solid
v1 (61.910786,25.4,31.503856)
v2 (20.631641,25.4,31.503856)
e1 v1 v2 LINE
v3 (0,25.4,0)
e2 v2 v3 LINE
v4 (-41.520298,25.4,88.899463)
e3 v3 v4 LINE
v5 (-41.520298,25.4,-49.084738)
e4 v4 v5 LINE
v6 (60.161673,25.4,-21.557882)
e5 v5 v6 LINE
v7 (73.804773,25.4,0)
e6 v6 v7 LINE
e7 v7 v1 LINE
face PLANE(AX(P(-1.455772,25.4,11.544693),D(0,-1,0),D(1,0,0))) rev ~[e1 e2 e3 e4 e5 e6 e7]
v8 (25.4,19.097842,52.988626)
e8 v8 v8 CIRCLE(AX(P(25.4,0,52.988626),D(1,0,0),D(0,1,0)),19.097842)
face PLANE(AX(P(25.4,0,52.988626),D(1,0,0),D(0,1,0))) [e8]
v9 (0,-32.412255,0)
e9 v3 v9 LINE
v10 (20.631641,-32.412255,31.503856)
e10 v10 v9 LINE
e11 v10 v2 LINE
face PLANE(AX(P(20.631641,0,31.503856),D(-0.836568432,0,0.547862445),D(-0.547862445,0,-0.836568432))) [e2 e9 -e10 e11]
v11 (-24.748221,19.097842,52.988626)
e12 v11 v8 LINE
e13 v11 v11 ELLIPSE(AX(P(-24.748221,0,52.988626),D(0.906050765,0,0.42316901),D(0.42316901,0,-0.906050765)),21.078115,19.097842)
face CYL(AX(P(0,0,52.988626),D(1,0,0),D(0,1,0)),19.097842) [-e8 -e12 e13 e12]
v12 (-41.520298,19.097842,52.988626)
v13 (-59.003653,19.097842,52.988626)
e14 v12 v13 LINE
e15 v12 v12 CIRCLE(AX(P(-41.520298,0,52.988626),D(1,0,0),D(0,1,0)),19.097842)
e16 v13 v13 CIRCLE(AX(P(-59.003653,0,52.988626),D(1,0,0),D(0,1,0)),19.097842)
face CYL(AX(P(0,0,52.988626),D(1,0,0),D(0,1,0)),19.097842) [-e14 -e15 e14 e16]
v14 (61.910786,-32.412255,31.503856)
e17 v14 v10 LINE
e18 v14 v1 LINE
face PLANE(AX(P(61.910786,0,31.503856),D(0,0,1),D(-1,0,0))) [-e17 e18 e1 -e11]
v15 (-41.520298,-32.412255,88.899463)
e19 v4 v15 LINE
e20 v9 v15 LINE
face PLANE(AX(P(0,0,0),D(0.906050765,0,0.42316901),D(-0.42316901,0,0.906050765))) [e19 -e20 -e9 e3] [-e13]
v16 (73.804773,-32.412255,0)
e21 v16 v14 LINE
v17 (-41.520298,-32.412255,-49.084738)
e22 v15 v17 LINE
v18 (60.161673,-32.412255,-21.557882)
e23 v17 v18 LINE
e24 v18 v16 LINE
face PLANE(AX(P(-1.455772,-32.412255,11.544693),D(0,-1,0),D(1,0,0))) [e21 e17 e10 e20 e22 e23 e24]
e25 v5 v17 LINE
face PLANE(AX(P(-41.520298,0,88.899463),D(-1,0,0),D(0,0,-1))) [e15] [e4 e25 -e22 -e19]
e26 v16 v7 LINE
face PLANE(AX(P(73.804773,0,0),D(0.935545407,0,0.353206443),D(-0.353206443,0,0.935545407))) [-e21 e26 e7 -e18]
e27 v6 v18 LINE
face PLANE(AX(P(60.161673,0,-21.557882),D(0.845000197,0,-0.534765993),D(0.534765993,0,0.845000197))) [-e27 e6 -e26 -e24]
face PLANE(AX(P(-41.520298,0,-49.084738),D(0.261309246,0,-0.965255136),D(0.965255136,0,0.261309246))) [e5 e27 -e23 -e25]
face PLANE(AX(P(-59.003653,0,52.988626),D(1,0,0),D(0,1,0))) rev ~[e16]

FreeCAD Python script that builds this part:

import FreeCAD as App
import Part
import Sketcher
Q = App.Units.Quantity

doc = App.newDocument("Part")
body = doc.addObject("PartDesign::Body", "Body")

sketch1 = doc.addObject("Sketcher::SketchObject", "Sketch")
body.addObject(sketch1)
sketch1.AttachmentSupport = (doc.XZ_Plane, [""])
sketch1.MapMode = "FlatFace"
sketch1.addGeometry([
    Part.LineSegment(App.Vector(20.631641, 31.503856, 0), App.Vector(0, 0, 0)),
    Part.LineSegment(App.Vector(0, 0, 0), App.Vector(-41.520298, 88.899463, 0)),
    Part.LineSegment(App.Vector(-41.520298, 88.899463, 0), App.Vector(-41.520298, -49.084738, 0)),
    Part.LineSegment(App.Vector(-41.520298, -49.084738, 0), App.Vector(60.161673, -21.557882, 0)),
    Part.LineSegment(App.Vector(60.161673, -21.557882, 0), App.Vector(73.804773, 0, 0)),
    Part.LineSegment(App.Vector(73.804773, 0, 0), App.Vector(61.910786, 31.503856, 0)),
    Part.LineSegment(App.Vector(61.910786, 31.503856, 0), App.Vector(20.631641, 31.503856, 0)),
], False)
sketch1.addConstraint([
    Sketcher.Constraint("Coincident", 0, 2, 1, 1),
    Sketcher.Constraint("Coincident", 1, 2, 2, 1),
    Sketcher.Constraint("Coincident", 2, 2, 3, 1),
    Sketcher.Constraint("Coincident", 3, 2, 4, 1),
    Sketcher.Constraint("Coincident", 4, 2, 5, 1),
    Sketcher.Constraint("Coincident", 5, 2, 6, 1),
    Sketcher.Constraint("Coincident", 6, 2, 0, 1),
    Sketcher.Constraint("Vertical", 2),
    Sketcher.Constraint("Horizontal", 6),
    Sketcher.Constraint("Coincident", 0, 2, -1, 1),
    Sketcher.Constraint("PointOnObject", 4, 2, -1),
    Sketcher.Constraint("DistanceY", 2, 2, 2, 1, 137.984201),
    Sketcher.Constraint("DistanceX", 3, 2, 4, 2, 13.6431),
    Sketcher.Constraint("Distance", 1, 98.11753),
    Sketcher.Constraint("Distance", 4, 25.51228),
    Sketcher.Constraint("Distance", 5, 33.674321),
    Sketcher.Constraint("DistanceX", 6, 2, 6, 1, 41.279145),
    Sketcher.Constraint("DistanceY", 2, 2, -1, 1, 49.084738),
    Sketcher.Constraint("DistanceX", -1, 1, 6, 2, 20.631641),
    Sketcher.Constraint("DistanceX", 2, 2, 3, 2, 101.681971),
])
pad1 = doc.addObject("PartDesign::Pad", "Pad")
body.addObject(pad1)
pad1.Profile = sketch1
pad1.Type = "TwoLengths"
pad1.Length = 32.412255
pad1.Length2 = Q("1 in")

sketch2 = doc.addObject("Sketcher::SketchObject", "Sketch001")
body.addObject(sketch2)
sketch2.AttachmentSupport = (doc.YZ_Plane, [""])
sketch2.MapMode = "FlatFace"
sketch2.addGeometry(Part.Circle(App.Vector(0, 52.988626, 0), App.Vector(0, 0, 1), 19.097842), False)
sketch2.addConstraint([
    Sketcher.Constraint("PointOnObject", 0, 3, -2),
    Sketcher.Constraint("Diameter", 0, 38.195684),
    Sketcher.Constraint("DistanceY", -1, 1, 0, 3, 52.988626),
])
pad2 = doc.addObject("PartDesign::Pad", "Pad001")
body.addObject(pad2)
pad2.Profile = sketch2
pad2.Type = "TwoLengths"
pad2.Length = Q("1 in")
pad2.Length2 = 59.003653

doc.recompute()
